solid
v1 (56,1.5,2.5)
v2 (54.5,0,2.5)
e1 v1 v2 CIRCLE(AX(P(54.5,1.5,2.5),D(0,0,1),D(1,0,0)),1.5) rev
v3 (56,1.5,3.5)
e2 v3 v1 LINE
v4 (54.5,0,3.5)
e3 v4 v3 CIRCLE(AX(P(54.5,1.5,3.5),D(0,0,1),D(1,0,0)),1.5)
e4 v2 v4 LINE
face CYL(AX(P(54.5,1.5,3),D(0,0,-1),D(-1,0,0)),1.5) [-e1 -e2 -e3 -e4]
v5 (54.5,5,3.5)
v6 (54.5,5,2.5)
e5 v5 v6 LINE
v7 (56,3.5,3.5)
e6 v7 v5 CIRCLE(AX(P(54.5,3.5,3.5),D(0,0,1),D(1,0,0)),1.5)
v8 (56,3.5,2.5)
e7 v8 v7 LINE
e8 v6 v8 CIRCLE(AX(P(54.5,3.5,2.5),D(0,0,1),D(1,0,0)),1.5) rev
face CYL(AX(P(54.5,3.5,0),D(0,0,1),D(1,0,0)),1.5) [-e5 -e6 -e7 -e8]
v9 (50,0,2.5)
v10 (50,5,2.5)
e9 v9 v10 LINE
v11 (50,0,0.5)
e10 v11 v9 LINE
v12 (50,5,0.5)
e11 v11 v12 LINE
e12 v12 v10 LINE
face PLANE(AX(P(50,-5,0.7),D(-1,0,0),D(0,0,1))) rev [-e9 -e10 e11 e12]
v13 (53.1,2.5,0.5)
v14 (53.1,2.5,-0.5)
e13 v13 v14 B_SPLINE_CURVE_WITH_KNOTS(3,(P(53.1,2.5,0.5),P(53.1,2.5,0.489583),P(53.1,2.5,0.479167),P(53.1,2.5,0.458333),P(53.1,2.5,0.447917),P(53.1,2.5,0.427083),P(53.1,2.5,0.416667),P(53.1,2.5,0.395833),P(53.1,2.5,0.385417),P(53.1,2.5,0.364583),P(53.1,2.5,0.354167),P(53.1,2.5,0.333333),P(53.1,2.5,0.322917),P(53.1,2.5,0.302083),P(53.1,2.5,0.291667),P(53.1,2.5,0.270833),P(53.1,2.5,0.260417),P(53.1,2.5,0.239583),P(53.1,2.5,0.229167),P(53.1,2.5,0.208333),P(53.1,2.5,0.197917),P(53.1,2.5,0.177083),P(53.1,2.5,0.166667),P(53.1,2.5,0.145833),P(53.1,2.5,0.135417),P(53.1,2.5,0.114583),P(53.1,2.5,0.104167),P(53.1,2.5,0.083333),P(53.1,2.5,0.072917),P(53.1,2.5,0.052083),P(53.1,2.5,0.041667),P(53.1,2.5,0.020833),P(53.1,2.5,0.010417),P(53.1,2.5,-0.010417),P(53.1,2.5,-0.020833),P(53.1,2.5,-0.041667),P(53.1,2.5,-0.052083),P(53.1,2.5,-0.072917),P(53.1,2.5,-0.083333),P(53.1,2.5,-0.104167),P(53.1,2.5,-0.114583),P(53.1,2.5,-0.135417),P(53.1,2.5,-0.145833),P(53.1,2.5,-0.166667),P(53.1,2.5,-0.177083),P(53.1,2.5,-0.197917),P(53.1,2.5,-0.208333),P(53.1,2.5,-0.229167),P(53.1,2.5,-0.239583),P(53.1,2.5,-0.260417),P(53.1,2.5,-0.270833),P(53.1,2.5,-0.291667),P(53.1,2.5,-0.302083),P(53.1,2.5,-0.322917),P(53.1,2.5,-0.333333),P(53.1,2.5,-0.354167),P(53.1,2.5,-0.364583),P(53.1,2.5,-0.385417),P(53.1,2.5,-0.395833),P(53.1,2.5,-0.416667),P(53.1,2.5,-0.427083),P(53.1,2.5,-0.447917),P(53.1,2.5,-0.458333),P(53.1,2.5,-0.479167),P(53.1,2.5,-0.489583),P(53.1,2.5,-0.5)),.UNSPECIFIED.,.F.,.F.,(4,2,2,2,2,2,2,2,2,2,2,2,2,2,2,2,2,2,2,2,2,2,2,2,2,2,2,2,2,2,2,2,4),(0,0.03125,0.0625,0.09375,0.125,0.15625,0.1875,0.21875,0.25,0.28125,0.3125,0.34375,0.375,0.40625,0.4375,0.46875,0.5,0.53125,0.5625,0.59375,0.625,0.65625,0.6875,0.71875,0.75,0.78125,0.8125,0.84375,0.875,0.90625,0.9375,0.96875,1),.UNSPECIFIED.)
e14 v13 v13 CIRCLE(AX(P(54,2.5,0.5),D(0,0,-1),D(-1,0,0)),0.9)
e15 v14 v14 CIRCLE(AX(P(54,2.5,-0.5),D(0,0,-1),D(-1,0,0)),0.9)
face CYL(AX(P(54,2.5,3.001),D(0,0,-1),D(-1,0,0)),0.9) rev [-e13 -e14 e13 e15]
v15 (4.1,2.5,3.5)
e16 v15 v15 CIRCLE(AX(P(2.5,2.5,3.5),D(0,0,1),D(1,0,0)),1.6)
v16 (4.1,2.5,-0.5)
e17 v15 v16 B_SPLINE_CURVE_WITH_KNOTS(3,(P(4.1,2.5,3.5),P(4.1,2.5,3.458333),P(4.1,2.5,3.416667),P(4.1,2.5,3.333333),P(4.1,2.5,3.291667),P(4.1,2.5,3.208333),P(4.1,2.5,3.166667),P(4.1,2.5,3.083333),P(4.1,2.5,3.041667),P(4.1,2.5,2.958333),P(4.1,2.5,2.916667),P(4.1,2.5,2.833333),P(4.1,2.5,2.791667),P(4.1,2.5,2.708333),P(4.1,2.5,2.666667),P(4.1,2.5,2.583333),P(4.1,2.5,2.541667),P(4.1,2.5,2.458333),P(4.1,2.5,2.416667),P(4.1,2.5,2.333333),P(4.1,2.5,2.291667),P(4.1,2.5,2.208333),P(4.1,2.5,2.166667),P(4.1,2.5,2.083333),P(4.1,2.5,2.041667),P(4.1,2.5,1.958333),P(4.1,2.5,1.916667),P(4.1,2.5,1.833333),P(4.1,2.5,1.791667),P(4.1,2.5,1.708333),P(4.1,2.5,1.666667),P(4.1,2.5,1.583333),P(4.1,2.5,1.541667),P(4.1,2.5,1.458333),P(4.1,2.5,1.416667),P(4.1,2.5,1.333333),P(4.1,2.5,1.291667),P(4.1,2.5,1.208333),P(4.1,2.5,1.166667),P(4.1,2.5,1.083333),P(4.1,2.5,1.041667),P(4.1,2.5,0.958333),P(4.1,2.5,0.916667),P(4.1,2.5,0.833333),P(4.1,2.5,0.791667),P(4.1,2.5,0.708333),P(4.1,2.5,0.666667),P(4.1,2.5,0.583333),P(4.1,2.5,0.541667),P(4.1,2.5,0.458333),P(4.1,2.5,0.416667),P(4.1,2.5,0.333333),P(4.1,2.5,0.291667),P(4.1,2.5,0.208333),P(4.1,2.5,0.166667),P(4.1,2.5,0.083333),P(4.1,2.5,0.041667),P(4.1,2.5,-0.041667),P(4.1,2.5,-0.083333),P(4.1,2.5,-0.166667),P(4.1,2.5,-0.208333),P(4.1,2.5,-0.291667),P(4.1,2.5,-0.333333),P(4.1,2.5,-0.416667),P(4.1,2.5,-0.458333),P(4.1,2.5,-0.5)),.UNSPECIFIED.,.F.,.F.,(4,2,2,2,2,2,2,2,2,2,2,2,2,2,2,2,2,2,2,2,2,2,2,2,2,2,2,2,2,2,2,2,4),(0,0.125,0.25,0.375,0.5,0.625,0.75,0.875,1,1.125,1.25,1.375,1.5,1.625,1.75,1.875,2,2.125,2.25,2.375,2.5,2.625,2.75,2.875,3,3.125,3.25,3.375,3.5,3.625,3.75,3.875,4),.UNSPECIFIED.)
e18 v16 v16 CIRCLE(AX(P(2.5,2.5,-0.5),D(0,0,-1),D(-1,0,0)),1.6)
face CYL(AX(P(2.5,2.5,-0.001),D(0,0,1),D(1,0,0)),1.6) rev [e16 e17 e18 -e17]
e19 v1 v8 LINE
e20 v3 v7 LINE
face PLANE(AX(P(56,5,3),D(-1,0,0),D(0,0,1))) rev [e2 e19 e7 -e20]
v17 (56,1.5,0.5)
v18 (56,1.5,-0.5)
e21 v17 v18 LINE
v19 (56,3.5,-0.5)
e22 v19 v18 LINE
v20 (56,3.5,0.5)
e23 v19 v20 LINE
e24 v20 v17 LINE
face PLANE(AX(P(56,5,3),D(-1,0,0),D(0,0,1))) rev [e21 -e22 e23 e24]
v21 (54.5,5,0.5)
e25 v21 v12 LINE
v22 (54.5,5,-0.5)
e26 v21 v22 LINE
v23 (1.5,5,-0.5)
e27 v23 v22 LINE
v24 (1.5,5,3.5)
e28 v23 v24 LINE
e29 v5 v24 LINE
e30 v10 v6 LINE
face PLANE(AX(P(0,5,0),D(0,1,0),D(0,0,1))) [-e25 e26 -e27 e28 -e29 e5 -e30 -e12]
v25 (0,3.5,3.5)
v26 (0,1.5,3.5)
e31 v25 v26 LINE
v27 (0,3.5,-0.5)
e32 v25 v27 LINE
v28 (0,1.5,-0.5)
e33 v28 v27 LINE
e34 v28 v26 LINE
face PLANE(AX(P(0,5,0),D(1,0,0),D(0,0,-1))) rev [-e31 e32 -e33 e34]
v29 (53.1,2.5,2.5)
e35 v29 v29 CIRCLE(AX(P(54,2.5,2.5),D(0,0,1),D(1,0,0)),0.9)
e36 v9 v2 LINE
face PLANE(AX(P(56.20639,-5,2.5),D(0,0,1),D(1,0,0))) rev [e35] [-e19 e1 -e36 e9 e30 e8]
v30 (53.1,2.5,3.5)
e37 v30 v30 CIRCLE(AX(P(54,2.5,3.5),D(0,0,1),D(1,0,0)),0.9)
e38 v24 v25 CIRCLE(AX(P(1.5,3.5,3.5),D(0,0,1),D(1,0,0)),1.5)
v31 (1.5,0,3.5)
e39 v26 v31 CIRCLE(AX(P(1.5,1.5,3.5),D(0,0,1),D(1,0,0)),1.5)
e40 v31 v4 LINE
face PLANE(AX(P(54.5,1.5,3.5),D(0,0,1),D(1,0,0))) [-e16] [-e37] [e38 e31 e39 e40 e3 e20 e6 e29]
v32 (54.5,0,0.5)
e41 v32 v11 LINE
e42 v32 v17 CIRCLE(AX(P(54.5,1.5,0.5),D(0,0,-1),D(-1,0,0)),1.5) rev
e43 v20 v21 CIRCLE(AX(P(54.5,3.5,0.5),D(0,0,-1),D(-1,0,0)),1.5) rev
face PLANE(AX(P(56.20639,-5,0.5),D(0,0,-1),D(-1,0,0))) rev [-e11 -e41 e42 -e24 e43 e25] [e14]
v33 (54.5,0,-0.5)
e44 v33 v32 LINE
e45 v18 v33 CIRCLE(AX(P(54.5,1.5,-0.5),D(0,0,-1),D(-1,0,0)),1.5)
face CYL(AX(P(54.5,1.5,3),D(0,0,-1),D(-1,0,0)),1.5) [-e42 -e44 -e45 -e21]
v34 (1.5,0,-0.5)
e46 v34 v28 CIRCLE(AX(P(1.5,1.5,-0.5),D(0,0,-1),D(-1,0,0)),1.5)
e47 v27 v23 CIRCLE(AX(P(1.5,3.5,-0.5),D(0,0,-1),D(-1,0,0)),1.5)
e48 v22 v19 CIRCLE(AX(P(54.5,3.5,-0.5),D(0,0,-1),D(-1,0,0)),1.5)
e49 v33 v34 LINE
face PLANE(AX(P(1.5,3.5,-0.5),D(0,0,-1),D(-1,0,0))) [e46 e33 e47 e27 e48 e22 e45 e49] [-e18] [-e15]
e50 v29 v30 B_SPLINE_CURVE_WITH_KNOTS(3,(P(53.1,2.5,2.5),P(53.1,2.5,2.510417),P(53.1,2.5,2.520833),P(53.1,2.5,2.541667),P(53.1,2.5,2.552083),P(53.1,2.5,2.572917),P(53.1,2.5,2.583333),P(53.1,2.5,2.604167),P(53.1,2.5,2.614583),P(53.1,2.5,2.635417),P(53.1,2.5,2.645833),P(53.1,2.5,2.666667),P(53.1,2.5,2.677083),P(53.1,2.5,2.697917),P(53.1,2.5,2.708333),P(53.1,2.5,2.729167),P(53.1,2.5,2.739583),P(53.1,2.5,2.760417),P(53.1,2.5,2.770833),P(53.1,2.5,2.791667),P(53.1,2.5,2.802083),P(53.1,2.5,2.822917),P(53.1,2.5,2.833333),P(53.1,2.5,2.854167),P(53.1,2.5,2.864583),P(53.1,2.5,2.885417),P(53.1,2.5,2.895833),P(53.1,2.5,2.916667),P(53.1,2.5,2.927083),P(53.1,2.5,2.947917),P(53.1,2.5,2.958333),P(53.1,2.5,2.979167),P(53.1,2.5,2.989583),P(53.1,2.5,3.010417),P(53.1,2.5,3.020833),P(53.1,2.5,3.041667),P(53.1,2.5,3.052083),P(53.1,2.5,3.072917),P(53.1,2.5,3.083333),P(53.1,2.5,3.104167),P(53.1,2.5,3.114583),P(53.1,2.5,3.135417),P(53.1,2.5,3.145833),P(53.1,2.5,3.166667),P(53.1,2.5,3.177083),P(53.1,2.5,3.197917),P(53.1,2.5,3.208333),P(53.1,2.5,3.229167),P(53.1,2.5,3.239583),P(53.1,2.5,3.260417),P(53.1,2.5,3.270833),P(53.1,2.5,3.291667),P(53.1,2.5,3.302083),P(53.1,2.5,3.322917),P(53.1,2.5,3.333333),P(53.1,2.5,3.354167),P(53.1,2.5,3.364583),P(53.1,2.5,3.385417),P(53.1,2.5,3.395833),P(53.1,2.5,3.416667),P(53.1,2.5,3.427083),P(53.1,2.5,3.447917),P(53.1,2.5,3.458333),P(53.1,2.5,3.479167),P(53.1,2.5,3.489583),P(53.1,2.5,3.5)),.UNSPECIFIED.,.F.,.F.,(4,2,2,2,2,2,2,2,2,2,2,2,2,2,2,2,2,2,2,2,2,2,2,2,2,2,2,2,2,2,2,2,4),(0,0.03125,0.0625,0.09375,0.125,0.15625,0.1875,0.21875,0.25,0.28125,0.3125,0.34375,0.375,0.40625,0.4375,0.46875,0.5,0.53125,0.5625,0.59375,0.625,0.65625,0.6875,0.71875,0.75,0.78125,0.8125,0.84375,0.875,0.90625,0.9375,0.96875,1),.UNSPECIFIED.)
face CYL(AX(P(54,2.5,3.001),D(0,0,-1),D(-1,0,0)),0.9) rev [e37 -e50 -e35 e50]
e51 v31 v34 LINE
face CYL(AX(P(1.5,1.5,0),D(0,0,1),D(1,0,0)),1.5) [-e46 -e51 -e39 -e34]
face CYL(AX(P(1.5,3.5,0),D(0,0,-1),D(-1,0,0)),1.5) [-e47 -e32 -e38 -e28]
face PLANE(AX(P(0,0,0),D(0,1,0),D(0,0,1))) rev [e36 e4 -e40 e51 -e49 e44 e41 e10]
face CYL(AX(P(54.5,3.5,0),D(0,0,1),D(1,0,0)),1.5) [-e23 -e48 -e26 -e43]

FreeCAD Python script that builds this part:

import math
import FreeCAD as App
import Part
import Sketcher

V = App.Vector


def edges_at(feature, points):
    """Names of the edges that pass closest to the given points."""
    edges = feature.Shape.Edges
    near = lambda p: min(range(len(edges)), key=lambda i: edges[i].distToShape(Part.Vertex(*p))[0])
    return sorted({f"Edge{near(p) + 1}" for p in points})


def add_polygon(sketch, points):
    """Adds a closed chain of lines whose ends are joined by coincident constraints."""
    first, n = sketch.GeometryCount, len(points)
    for a, b in zip(points, points[1:] + points[:1]):
        sketch.addGeometry(Part.LineSegment(App.Vector(*a, 0), App.Vector(*b, 0)), False)
    for i in range(n):
        sketch.addConstraint(Sketcher.Constraint("Coincident", first + i, 2, first + (i + 1) % n, 1))

doc = App.newDocument("Part")
body = doc.addObject("PartDesign::Body", "Body")

# Sketch on XZ plane
sketch1 = doc.addObject("Sketcher::SketchObject", "Sketch")
body.addObject(sketch1)
sketch1.AttachmentSupport = (doc.XZ_Plane, [""])
sketch1.MapMode = "FlatFace"
add_polygon(sketch1, [(0, 0), (0, 3), (56, 3), (56, 0)])  # lines 0-3
sketch1.addConstraint(Sketcher.Constraint("Vertical", 0))
sketch1.addConstraint(Sketcher.Constraint("Horizontal", 1))
sketch1.addConstraint(Sketcher.Constraint("Vertical", 2))
sketch1.addConstraint(Sketcher.Constraint("Horizontal", 3))
sketch1.addConstraint(Sketcher.Constraint("Coincident", 3, 2, -1, 1))
sketch1.addConstraint(Sketcher.Constraint("DistanceX", 1, 1, 1, 2, 56.0))
sketch1.addConstraint(Sketcher.Constraint("DistanceY", 0, 1, 0, 2, 3.0))
pad1 = doc.addObject("PartDesign::Pad", "Pad")
body.addObject(pad1)
pad1.Profile = sketch1
pad1.Length = 5
pad1.Reversed = True

# Sketch on XY plane
sketch2 = doc.addObject("Sketcher::SketchObject", "Sketch001")
body.addObject(sketch2)
sketch2.AttachmentSupport = (doc.XY_Plane, [""])
sketch2.MapMode = "FlatFace"
sketch2.AttachmentOffset = App.Placement(V(0, 0, 3), App.Rotation())
sketch2.addGeometry(Part.Circle(V(2.5, 2.5, 0), V(0, 0, 1), 1.6), False)
sketch2.addConstraint(Sketcher.Constraint("Diameter", 0, 3.2))
sketch2.addConstraint(Sketcher.Constraint("DistanceX", -1, 1, 0, 3, 2.5))
sketch2.addConstraint(Sketcher.Constraint("DistanceY", -1, 1, 0, 3, 2.5))
pocket1 = doc.addObject("PartDesign::Pocket", "Pocket")
body.addObject(pocket1)
pocket1.Profile = sketch2
pocket1.Type = "UpToFirst"

# Sketch on XY plane
sketch3 = doc.addObject("Sketcher::SketchObject", "Sketch002")
body.addObject(sketch3)
sketch3.AttachmentSupport = (doc.XY_Plane, [""])
sketch3.MapMode = "FlatFace"
sketch3.addGeometry(Part.Circle(V(54, 2.5, 0), V(0, 0, 1), 0.9), False)
sketch3.addConstraint(Sketcher.Constraint("Diameter", 0, 1.8))
sketch3.addConstraint(Sketcher.Constraint("DistanceX", -1, 1, 0, 3, 54.0))
sketch3.addConstraint(Sketcher.Constraint("DistanceY", -1, 1, 0, 3, 2.5))
pocket2 = doc.addObject("PartDesign::Pocket", "Pocket001")
body.addObject(pocket2)
pocket2.Profile = sketch3
pocket2.Type = "UpToFirst"
pocket2.Reversed = True
doc.recompute()

fillet = doc.addObject("PartDesign::Fillet", "Fillet")
body.addObject(fillet)
fillet.Base = (pocket2, edges_at(pocket2, [
    (56, 5, 1.5),
    (56, 0, 1.5),
    (0, 0, 1.5),
    (0, 5, 1.5),
]))
fillet.Radius = 1.5

# Sketch on XZ plane
sketch4 = doc.addObject("Sketcher::SketchObject", "Sketch003")
body.addObject(sketch4)
sketch4.AttachmentSupport = (doc.XZ_Plane, [""])
sketch4.MapMode = "FlatFace"
sketch4.AttachmentOffset = App.Placement(V(0, 0, -5), App.Rotation())
add_polygon(sketch4, [(50, 0.7), (50, 2.3), (56, 2.3), (56, 0.7)])  # lines 0-3
sketch4.addConstraint(Sketcher.Constraint("Vertical", 0))
sketch4.addConstraint(Sketcher.Constraint("Horizontal", 1))
sketch4.addConstraint(Sketcher.Constraint("Vertical", 2))
sketch4.addConstraint(Sketcher.Constraint("Horizontal", 3))
sketch4.addConstraint(Sketcher.Constraint("DistanceX", 1, 1, 1, 2, 6.0))
sketch4.addConstraint(Sketcher.Constraint("DistanceY", 0, 1, 0, 2, 1.6))
sketch4.addConstraint(Sketcher.Constraint("DistanceX", -1, 1, 0, 2, 50.0))
sketch4.addConstraint(Sketcher.Constraint("DistanceY", -1, 1, 0, 2, 2.3))
pocket3 = doc.addObject("PartDesign::Pocket", "Pocket002")
body.addObject(pocket3)
pocket3.Profile = sketch4
pocket3.Length = 10
pocket3.Reversed = True

# Sketch on XY plane
sketch5 = doc.addObject("Sketcher::SketchObject", "Sketch004")
body.addObject(sketch5)
sketch5.AttachmentSupport = (doc.XY_Plane, [""])
sketch5.MapMode = "FlatFace"
sketch5.AttachmentOffset = App.Placement(V(0, 0, 3), App.Rotation())
sketch5.addGeometry(Part.LineSegment(V(56, 1.5, 0), V(56, 3.5, 0)), False)
sketch5.addGeometry(Part.ArcOfCircle(Part.Circle(V(54.5, 3.5, 0), V(0, 0, 1), 1.5), math.radians(0), math.radians(90)), False)
sketch5.addGeometry(Part.LineSegment(V(54.5, 5, 0), V(1.5, 5, 0)), False)
sketch5.addGeometry(Part.ArcOfCircle(Part.Circle(V(1.5, 3.5, 0), V(0, 0, 1), 1.5), math.radians(90), math.radians(180)), False)
sketch5.addGeometry(Part.LineSegment(V(0, 3.5, 0), V(0, 1.5, 0)), False)
sketch5.addGeometry(Part.ArcOfCircle(Part.Circle(V(1.5, 1.5, 0), V(0, 0, 1), 1.5), math.radians(180), math.radians(270)), False)
sketch5.addGeometry(Part.LineSegment(V(1.5, 0, 0), V(54.5, 0, 0)), False)
sketch5.addGeometry(Part.ArcOfCircle(Part.Circle(V(54.5, 1.5, 0), V(0, 0, 1), 1.5), math.radians(-90), math.radians(0)), False)
sketch5.addGeometry(Part.Circle(V(2.5, 2.5, 0), V(0, 0, 1), 1.6), False)
sketch5.addGeometry(Part.Circle(V(54, 2.5, 0), V(0, 0, 1), 0.9), False)
sketch5.addConstraint(Sketcher.Constraint("Tangent", 0, 2, 1, 1))
sketch5.addConstraint(Sketcher.Constraint("Tangent", 1, 2, 2, 1))
sketch5.addConstraint(Sketcher.Constraint("Tangent", 2, 2, 3, 1))
sketch5.addConstraint(Sketcher.Constraint("Tangent", 3, 2, 4, 1))
sketch5.addConstraint(Sketcher.Constraint("Tangent", 4, 2, 5, 1))
sketch5.addConstraint(Sketcher.Constraint("Tangent", 5, 2, 6, 1))
sketch5.addConstraint(Sketcher.Constraint("Tangent", 6, 2, 7, 1))
sketch5.addConstraint(Sketcher.Constraint("Tangent", 7, 2, 0, 1))
sketch5.addConstraint(Sketcher.Constraint("Vertical", 0))
sketch5.addConstraint(Sketcher.Constraint("Horizontal", 2))
sketch5.addConstraint(Sketcher.Constraint("Vertical", 4))
sketch5.addConstraint(Sketcher.Constraint("Horizontal", 6))
sketch5.addConstraint(Sketcher.Constraint("Equal", 1, 3))
sketch5.addConstraint(Sketcher.Constraint("Equal", 3, 5))
sketch5.addConstraint(Sketcher.Constraint("Equal", 5, 7))
sketch5.addConstraint(Sketcher.Constraint("PointOnObject", 3, 2, -2))
sketch5.addConstraint(Sketcher.Constraint("PointOnObject", 5, 2, -1))
sketch5.addConstraint(Sketcher.Constraint("Horizontal", 8, 3, 9, 3))
sketch5.addConstraint(Sketcher.Constraint("Diameter", 8, 3.2))
sketch5.addConstraint(Sketcher.Constraint("Diameter", 9, 1.8))
sketch5.addConstraint(Sketcher.Constraint("Radius", 1, 1.5))
sketch5.addConstraint(Sketcher.Constraint("DistanceX", 2, 2, 2, 1, 53.0))
sketch5.addConstraint(Sketcher.Constraint("DistanceY", 0, 1, 0, 2, 2.0))
sketch5.addConstraint(Sketcher.Constraint("DistanceX", -1, 1, 9, 3, 54.0))
sketch5.addConstraint(Sketcher.Constraint("DistanceX", 3, 3, 8, 3, 1.0))
sketch5.addConstraint(Sketcher.Constraint("DistanceY", 8, 3, 3, 3, 1.0))
pad2 = doc.addObject("PartDesign::Pad", "Pad001")
body.addObject(pad2)
pad2.Profile = sketch5
pad2.Length = 0.5

# Sketch on XY plane
sketch6 = doc.addObject("Sketcher::SketchObject", "Sketch005")
body.addObject(sketch6)
sketch6.AttachmentSupport = (doc.XY_Plane, [""])
sketch6.MapMode = "FlatFace"
sketch6.AttachmentOffset = App.Placement(V(0, 0, -0.5), App.Rotation())
sketch6.addGeometry(Part.LineSegment(V(1.5, 5, 0), V(54.5, 5, 0)), False)
sketch6.addGeometry(Part.ArcOfCircle(Part.Circle(V(54.5, 3.5, 0), V(0, 0, 1), 1.5), math.radians(0), math.radians(90)), False)
sketch6.addGeometry(Part.LineSegment(V(56, 3.5, 0), V(56, 1.5, 0)), False)
sketch6.addGeometry(Part.ArcOfCircle(Part.Circle(V(54.5, 1.5, 0), V(0, 0, 1), 1.5), math.radians(-90), math.radians(0)), False)
sketch6.addGeometry(Part.LineSegment(V(54.5, 0, 0), V(1.5, 0, 0)), False)
sketch6.addGeometry(Part.ArcOfCircle(Part.Circle(V(1.5, 1.5, 0), V(0, 0, 1), 1.5), math.radians(180), math.radians(270)), False)
sketch6.addGeometry(Part.LineSegment(V(0, 1.5, 0), V(0, 3.5, 0)), False)
sketch6.addGeometry(Part.ArcOfCircle(Part.Circle(V(1.5, 3.5, 0), V(0, 0, 1), 1.5), math.radians(90), math.radians(180)), False)
sketch6.addGeometry(Part.Circle(V(54, 2.5, 0), V(0, 0, 1), 0.9), False)
sketch6.addGeometry(Part.Circle(V(2.5, 2.5, 0), V(0, 0, 1), 1.6), False)
sketch6.addConstraint(Sketcher.Constraint("Tangent", 0, 2, 1, 2))
sketch6.addConstraint(Sketcher.Constraint("Tangent", 1, 1, 2, 1))
sketch6.addConstraint(Sketcher.Constraint("Tangent", 2, 2, 3, 2))
sketch6.addConstraint(Sketcher.Constraint("Tangent", 3, 1, 4, 1))
sketch6.addConstraint(Sketcher.Constraint("Tangent", 4, 2, 5, 2))
sketch6.addConstraint(Sketcher.Constraint("Tangent", 5, 1, 6, 1))
sketch6.addConstraint(Sketcher.Constraint("Tangent", 6, 2, 7, 2))
sketch6.addConstraint(Sketcher.Constraint("Tangent", 7, 1, 0, 1))
sketch6.addConstraint(Sketcher.Constraint("Horizontal", 0))
sketch6.addConstraint(Sketcher.Constraint("Vertical", 2))
sketch6.addConstraint(Sketcher.Constraint("Horizontal", 4))
sketch6.addConstraint(Sketcher.Constraint("Vertical", 6))
sketch6.addConstraint(Sketcher.Constraint("Equal", 1, 3))
sketch6.addConstraint(Sketcher.Constraint("Equal", 3, 5))
sketch6.addConstraint(Sketcher.Constraint("Equal", 5, 7))
sketch6.addConstraint(Sketcher.Constraint("PointOnObject", 3, 1, -1))
sketch6.addConstraint(Sketcher.Constraint("PointOnObject", 5, 1, -2))
sketch6.addConstraint(Sketcher.Constraint("Horizontal", 8, 3, 9, 3))
sketch6.addConstraint(Sketcher.Constraint("Diameter", 8, 1.8))
sketch6.addConstraint(Sketcher.Constraint("Diameter", 9, 3.2))
sketch6.addConstraint(Sketcher.Constraint("Radius", 1, 1.5))
sketch6.addConstraint(Sketcher.Constraint("DistanceX", 0, 1, 0, 2, 53.0))
sketch6.addConstraint(Sketcher.Constraint("DistanceY", 2, 2, 2, 1, 2.0))
sketch6.addConstraint(Sketcher.Constraint("DistanceX", -1, 1, 8, 3, 54.0))
sketch6.addConstraint(Sketcher.Constraint("DistanceY", 8, 3, 1, 3, 1.0))
sketch6.addConstraint(Sketcher.Constraint("DistanceX", 5, 3, 9, 3, 1.0))
pad3 = doc.addObject("PartDesign::Pad", "Pad002")
body.addObject(pad3)
pad3.Profile = sketch6
pad3.Length = 0.5

# Sketch on XZ plane
sketch7 = doc.addObject("Sketcher::SketchObject", "Sketch006")
body.addObject(sketch7)
sketch7.AttachmentSupport = (doc.XZ_Plane, [""])
sketch7.MapMode = "FlatFace"
sketch7.AttachmentOffset = App.Placement(V(0, 0, -5), App.Rotation())
add_polygon(sketch7, [(50, 0.5), (50, 2.5), (56.2, 2.5), (56.2, 0.5)])  # lines 0-3
sketch7.addConstraint(Sketcher.Constraint("Vertical", 0))
sketch7.addConstraint(Sketcher.Constraint("Horizontal", 1))
sketch7.addConstraint(Sketcher.Constraint("Vertical", 2))
sketch7.addConstraint(Sketcher.Constraint("Horizontal", 3))
sketch7.addConstraint(Sketcher.Constraint("DistanceY", 0, 1, 0, 2, 2.0))
sketch7.addConstraint(Sketcher.Constraint("DistanceX", -1, 1, 0, 2, 50.0))
sketch7.addConstraint(Sketcher.Constraint("DistanceY", -1, 1, 0, 2, 2.5))
sketch7.addConstraint(Sketcher.Constraint("DistanceX", 1, 1, 1, 2, 6.20639))
pocket4 = doc.addObject("PartDesign::Pocket", "Pocket003")
body.addObject(pocket4)
pocket4.Profile = sketch7
pocket4.Length = 10
pocket4.Reversed = True

doc.recompute()
